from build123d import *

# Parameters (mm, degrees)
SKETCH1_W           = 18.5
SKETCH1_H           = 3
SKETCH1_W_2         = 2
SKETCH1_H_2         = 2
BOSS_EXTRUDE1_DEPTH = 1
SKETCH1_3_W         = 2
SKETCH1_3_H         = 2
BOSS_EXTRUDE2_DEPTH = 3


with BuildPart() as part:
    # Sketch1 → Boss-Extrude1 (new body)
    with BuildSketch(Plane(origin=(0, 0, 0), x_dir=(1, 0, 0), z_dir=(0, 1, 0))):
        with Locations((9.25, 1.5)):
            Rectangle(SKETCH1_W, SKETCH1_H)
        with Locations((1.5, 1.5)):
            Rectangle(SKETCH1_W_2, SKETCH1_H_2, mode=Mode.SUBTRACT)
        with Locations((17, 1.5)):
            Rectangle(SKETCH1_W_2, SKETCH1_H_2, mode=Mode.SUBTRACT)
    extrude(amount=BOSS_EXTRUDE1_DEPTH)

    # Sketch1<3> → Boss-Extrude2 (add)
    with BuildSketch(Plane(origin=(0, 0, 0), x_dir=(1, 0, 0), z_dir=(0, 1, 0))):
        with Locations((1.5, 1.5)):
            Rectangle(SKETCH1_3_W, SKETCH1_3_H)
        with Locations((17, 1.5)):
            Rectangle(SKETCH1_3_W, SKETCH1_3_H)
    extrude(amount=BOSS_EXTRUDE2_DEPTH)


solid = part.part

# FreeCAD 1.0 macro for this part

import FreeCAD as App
import Part
import Sketcher
Q = App.Units.Quantity

doc = App.newDocument("Part")
body = doc.addObject("PartDesign::Body", "Body")

# Sketch on XZ plane
sketch1 = doc.addObject("Sketcher::SketchObject", "Sketch")
body.addObject(sketch1)
sketch1.AttachmentSupport = (doc.XZ_Plane, [""])
sketch1.MapMode = "FlatFace"
sketch1.addGeometry([
    Part.LineSegment(App.Vector(0, -3, 0), App.Vector(0, 0, 0)),  # 0
    Part.LineSegment(App.Vector(0, 0, 0), App.Vector(18.5, 0, 0)),  # 1
    Part.LineSegment(App.Vector(18.5, 0, 0), App.Vector(18.5, -3, 0)),  # 2
    Part.LineSegment(App.Vector(18.5, -3, 0), App.Vector(0, -3, 0)),  # 3
    Part.LineSegment(App.Vector(2.5, -0.5, 0), App.Vector(0.5, -0.5, 0)),  # 4
    Part.LineSegment(App.Vector(0.5, -0.5, 0), App.Vector(0.5, -2.5, 0)),  # 5
    Part.LineSegment(App.Vector(0.5, -2.5, 0), App.Vector(2.5, -2.5, 0)),  # 6
    Part.LineSegment(App.Vector(2.5, -2.5, 0), App.Vector(2.5, -0.5, 0)),  # 7
    Part.LineSegment(App.Vector(18, -0.5, 0), App.Vector(16, -0.5, 0)),  # 8
    Part.LineSegment(App.Vector(16, -0.5, 0), App.Vector(16, -2.5, 0)),  # 9
    Part.LineSegment(App.Vector(16, -2.5, 0), App.Vector(18, -2.5, 0)),  # 10
    Part.LineSegment(App.Vector(18, -2.5, 0), App.Vector(18, -0.5, 0)),  # 11
], False)
sketch1.addConstraint([
    Sketcher.Constraint("Coincident", 0, 2, 1, 1),
    Sketcher.Constraint("Coincident", 1, 2, 2, 1),
    Sketcher.Constraint("Coincident", 2, 2, 3, 1),
    Sketcher.Constraint("Coincident", 3, 2, 0, 1),
    Sketcher.Constraint("Coincident", 4, 2, 5, 1),
    Sketcher.Constraint("Coincident", 5, 2, 6, 1),
    Sketcher.Constraint("Coincident", 6, 2, 7, 1),
    Sketcher.Constraint("Coincident", 7, 2, 4, 1),
    Sketcher.Constraint("Coincident", 8, 2, 9, 1),
    Sketcher.Constraint("Coincident", 9, 2, 10, 1),
    Sketcher.Constraint("Coincident", 10, 2, 11, 1),
    Sketcher.Constraint("Coincident", 11, 2, 8, 1),
    Sketcher.Constraint("Vertical", 0),
    Sketcher.Constraint("Horizontal", 1),
    Sketcher.Constraint("Vertical", 2),
    Sketcher.Constraint("Horizontal", 3),
    Sketcher.Constraint("Horizontal", 4),
    Sketcher.Constraint("Vertical", 5),
    Sketcher.Constraint("Horizontal", 6),
    Sketcher.Constraint("Vertical", 7),
    Sketcher.Constraint("Horizontal", 8),
    Sketcher.Constraint("Vertical", 9),
    Sketcher.Constraint("Horizontal", 10),
    Sketcher.Constraint("Vertical", 11),
    Sketcher.Constraint("Coincident", 0, 2, -1, 1),
    Sketcher.Constraint("Horizontal", 7, 2, 8, 2),
    Sketcher.Constraint("Horizontal", 6, 2, 9, 2),
    Sketcher.Constraint("Equal", 6, 8),
    Sketcher.Constraint("Equal", 10, 5),
    Sketcher.Constraint("DistanceX", 4, 2, 4, 1, Q("2 mm")),
    Sketcher.Constraint("DistanceY", 0, 1, 0, 2, Q("3 mm")),
    Sketcher.Constraint("DistanceX", 1, 1, 1, 2, Q("18.5 mm")),
    Sketcher.Constraint("DistanceX", -1, 1, 8, 2, Q("16 mm")),
    Sketcher.Constraint("DistanceX", 4, 2, 1, 2, Q("18 mm")),
    Sketcher.Constraint("DistanceY", 4, 2, -1, 1, Q("0.5 mm")),
])
pad1 = doc.addObject("PartDesign::Pad", "Pad")
body.addObject(pad1)
pad1.Profile = sketch1
pad1.Length = 1
pad1.Reversed = True

# Sketch on XZ plane
sketch2 = doc.addObject("Sketcher::SketchObject", "Sketch001")
body.addObject(sketch2)
sketch2.AttachmentSupport = (doc.XZ_Plane, [""])
sketch2.MapMode = "FlatFace"
sketch2.addGeometry([
    Part.LineSegment(App.Vector(0.5, -2.5, 0), App.Vector(0.5, -0.5, 0)),  # 0
    Part.LineSegment(App.Vector(0.5, -0.5, 0), App.Vector(2.5, -0.5, 0)),  # 1
    Part.LineSegment(App.Vector(2.5, -0.5, 0), App.Vector(2.5, -2.5, 0)),  # 2
    Part.LineSegment(App.Vector(2.5, -2.5, 0), App.Vector(0.5, -2.5, 0)),  # 3
    Part.LineSegment(App.Vector(16, -2.5, 0), App.Vector(16, -0.5, 0)),  # 4
    Part.LineSegment(App.Vector(16, -0.5, 0), App.Vector(18, -0.5, 0)),  # 5
    Part.LineSegment(App.Vector(18, -0.5, 0), App.Vector(18, -2.5, 0)),  # 6
    Part.LineSegment(App.Vector(18, -2.5, 0), App.Vector(16, -2.5, 0)),  # 7
], False)
sketch2.addConstraint([
    Sketcher.Constraint("Coincident", 0, 2, 1, 1),
    Sketcher.Constraint("Coincident", 1, 2, 2, 1),
    Sketcher.Constraint("Coincident", 2, 2, 3, 1),
    Sketcher.Constraint("Coincident", 3, 2, 0, 1),
    Sketcher.Constraint("Coincident", 4, 2, 5, 1),
    Sketcher.Constraint("Coincident", 5, 2, 6, 1),
    Sketcher.Constraint("Coincident", 6, 2, 7, 1),
    Sketcher.Constraint("Coincident", 7, 2, 4, 1),
    Sketcher.Constraint("Vertical", 0),
    Sketcher.Constraint("Horizontal", 1),
    Sketcher.Constraint("Vertical", 2),
    Sketcher.Constraint("Horizontal", 3),
    Sketcher.Constraint("Vertical", 4),
    Sketcher.Constraint("Horizontal", 5),
    Sketcher.Constraint("Vertical", 6),
    Sketcher.Constraint("Horizontal", 7),
    Sketcher.Constraint("Horizontal", 1, 2, 4, 2),
    Sketcher.Constraint("Horizontal", 3, 2, 6, 2),
    Sketcher.Constraint("Equal", 3, 5),
    Sketcher.Constraint("Equal", 7, 0),
    Sketcher.Constraint("DistanceX", 1, 1, 1, 2, Q("2 mm")),
    Sketcher.Constraint("DistanceX", -1, 1, 4, 2, Q("16 mm")),
    Sketcher.Constraint("DistanceX", -1, 1, 0, 2, Q("0.5 mm")),
    Sketcher.Constraint("DistanceY", 0, 2, -1, 1, Q("0.5 mm")),
])
pad2 = doc.addObject("PartDesign::Pad", "Pad001")
body.addObject(pad2)
pad2.Profile = sketch2
pad2.Length = 3
pad2.Reversed = True

doc.recompute()
